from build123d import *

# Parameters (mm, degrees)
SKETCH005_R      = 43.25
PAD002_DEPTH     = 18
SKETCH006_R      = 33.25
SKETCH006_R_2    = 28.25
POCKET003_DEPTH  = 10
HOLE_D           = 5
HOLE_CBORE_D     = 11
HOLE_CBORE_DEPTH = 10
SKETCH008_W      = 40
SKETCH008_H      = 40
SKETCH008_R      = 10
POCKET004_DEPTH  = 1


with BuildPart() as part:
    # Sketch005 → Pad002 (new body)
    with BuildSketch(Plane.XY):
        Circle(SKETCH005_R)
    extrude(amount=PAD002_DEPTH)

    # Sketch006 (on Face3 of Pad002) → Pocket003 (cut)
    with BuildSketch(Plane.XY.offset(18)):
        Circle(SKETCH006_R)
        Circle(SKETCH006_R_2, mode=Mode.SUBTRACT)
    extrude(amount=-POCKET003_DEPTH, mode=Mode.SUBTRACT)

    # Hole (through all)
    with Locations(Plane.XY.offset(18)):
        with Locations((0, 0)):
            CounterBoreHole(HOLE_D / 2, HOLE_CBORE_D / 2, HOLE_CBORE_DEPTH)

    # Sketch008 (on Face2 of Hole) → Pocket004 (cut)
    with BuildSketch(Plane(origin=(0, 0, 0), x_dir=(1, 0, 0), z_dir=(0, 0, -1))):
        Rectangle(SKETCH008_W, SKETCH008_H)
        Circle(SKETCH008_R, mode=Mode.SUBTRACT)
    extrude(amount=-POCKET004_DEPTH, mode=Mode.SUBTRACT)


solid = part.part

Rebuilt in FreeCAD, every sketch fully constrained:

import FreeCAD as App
import Part
import Sketcher


def add_polygon(sketch, points):
    """Adds a closed chain of lines whose ends are joined by coincident constraints."""
    first, n = sketch.GeometryCount, len(points)
    for a, b in zip(points, points[1:] + points[:1]):
        sketch.addGeometry(Part.LineSegment(App.Vector(*a, 0), App.Vector(*b, 0)), False)
    for i in range(n):
        sketch.addConstraint(Sketcher.Constraint("Coincident", first + i, 2, first + (i + 1) % n, 1))

doc = App.newDocument("Part")
body = doc.addObject("PartDesign::Body", "Body")

# Sketch on XY plane
sketch1 = body.newObject("Sketcher::SketchObject", "Sketch")
sketch1.AttachmentSupport = (doc.getObject("XY_Plane"), [""])
sketch1.MapMode = "FlatFace"
sketch1.addGeometry(Part.Circle(App.Vector(0, 0, 0), App.Vector(0, 0, 1), 43), False)
sketch1.addConstraint([
    Sketcher.Constraint("Coincident", 0, 3, -1, 1),
    Sketcher.Constraint("Diameter", 0, 86.5),
])
pad1 = body.newObject("PartDesign::Pad", "Pad")
pad1.Profile = sketch1
pad1.Length = 18

# Sketch on XY plane
sketch2 = body.newObject("Sketcher::SketchObject", "Sketch001")
sketch2.AttachmentSupport = (doc.getObject("XY_Plane"), [""])
sketch2.MapMode = "FlatFace"
sketch2.AttachmentOffset = App.Placement(App.Vector(0, 0, 18), App.Rotation())
sketch2.addGeometry([
    Part.Circle(App.Vector(0, 0, 0), App.Vector(0, 0, 1), 33),
    Part.Circle(App.Vector(0, 0, 0), App.Vector(0, 0, 1), 28),
], False)
sketch2.addConstraint([
    Sketcher.Constraint("Coincident", 0, 3, -1, 1),
    Sketcher.Constraint("Coincident", 1, 3, -1, 1),
    Sketcher.Constraint("Diameter", 0, 66.5),
    Sketcher.Constraint("Diameter", 1, 56.5),
])
pocket1 = body.newObject("PartDesign::Pocket", "Pocket")
pocket1.Profile = sketch2
pocket1.Length = 10

# Sketch on XY plane
sketch3 = body.newObject("Sketcher::SketchObject", "Sketch002")
sketch3.AttachmentSupport = (doc.getObject("XY_Plane"), [""])
sketch3.MapMode = "FlatFace"
sketch3.AttachmentOffset = App.Placement(App.Vector(0, 0, 18), App.Rotation())
sketch3.addGeometry(Part.Circle(App.Vector(0, 0, 0), App.Vector(0, 0, 1), 2.5), False)
sketch3.addConstraint([
    Sketcher.Constraint("Coincident", 0, 3, -1, 1),
    Sketcher.Constraint("Diameter", 0, 5.0),
])
doc.recompute()
hole = body.newObject("PartDesign::Hole", "Hole")
hole.Profile = sketch3
hole.ThreadType = "None"
hole.Diameter = 5
hole.DepthType = "ThroughAll"
hole.HoleCutType = "Counterbore"
hole.HoleCutDiameter = 11
hole.HoleCutDepth = 10

# Sketch on XY plane
sketch4 = body.newObject("Sketcher::SketchObject", "Sketch003")
sketch4.AttachmentSupport = (doc.getObject("XY_Plane"), [""])
sketch4.MapMode = "FlatFace"
add_polygon(sketch4, [(-20, -20), (-20, 20), (20, 20), (20, -20)])  # lines 0-3
sketch4.addGeometry(Part.Circle(App.Vector(0, 0, 0), App.Vector(0, 0, 1), 10), False)  # 4
sketch4.addConstraint([
    Sketcher.Constraint("Vertical", 0),
    Sketcher.Constraint("Horizontal", 1),
    Sketcher.Constraint("Vertical", 2),
    Sketcher.Constraint("Horizontal", 3),
    Sketcher.Constraint("Coincident", 4, 3, -1, 1),
    Sketcher.Constraint("Symmetric", 0, 2, 2, 2, -1, 1),
    Sketcher.Constraint("Equal", 3, 0),
    Sketcher.Constraint("Diameter", 4, 20.0),
    Sketcher.Constraint("DistanceX", 1, 1, 1, 2, 40.0),
])
pocket2 = body.newObject("PartDesign::Pocket", "Pocket001")
pocket2.Profile = sketch4
pocket2.Length = 1
pocket2.Reversed = True

doc.recompute()
